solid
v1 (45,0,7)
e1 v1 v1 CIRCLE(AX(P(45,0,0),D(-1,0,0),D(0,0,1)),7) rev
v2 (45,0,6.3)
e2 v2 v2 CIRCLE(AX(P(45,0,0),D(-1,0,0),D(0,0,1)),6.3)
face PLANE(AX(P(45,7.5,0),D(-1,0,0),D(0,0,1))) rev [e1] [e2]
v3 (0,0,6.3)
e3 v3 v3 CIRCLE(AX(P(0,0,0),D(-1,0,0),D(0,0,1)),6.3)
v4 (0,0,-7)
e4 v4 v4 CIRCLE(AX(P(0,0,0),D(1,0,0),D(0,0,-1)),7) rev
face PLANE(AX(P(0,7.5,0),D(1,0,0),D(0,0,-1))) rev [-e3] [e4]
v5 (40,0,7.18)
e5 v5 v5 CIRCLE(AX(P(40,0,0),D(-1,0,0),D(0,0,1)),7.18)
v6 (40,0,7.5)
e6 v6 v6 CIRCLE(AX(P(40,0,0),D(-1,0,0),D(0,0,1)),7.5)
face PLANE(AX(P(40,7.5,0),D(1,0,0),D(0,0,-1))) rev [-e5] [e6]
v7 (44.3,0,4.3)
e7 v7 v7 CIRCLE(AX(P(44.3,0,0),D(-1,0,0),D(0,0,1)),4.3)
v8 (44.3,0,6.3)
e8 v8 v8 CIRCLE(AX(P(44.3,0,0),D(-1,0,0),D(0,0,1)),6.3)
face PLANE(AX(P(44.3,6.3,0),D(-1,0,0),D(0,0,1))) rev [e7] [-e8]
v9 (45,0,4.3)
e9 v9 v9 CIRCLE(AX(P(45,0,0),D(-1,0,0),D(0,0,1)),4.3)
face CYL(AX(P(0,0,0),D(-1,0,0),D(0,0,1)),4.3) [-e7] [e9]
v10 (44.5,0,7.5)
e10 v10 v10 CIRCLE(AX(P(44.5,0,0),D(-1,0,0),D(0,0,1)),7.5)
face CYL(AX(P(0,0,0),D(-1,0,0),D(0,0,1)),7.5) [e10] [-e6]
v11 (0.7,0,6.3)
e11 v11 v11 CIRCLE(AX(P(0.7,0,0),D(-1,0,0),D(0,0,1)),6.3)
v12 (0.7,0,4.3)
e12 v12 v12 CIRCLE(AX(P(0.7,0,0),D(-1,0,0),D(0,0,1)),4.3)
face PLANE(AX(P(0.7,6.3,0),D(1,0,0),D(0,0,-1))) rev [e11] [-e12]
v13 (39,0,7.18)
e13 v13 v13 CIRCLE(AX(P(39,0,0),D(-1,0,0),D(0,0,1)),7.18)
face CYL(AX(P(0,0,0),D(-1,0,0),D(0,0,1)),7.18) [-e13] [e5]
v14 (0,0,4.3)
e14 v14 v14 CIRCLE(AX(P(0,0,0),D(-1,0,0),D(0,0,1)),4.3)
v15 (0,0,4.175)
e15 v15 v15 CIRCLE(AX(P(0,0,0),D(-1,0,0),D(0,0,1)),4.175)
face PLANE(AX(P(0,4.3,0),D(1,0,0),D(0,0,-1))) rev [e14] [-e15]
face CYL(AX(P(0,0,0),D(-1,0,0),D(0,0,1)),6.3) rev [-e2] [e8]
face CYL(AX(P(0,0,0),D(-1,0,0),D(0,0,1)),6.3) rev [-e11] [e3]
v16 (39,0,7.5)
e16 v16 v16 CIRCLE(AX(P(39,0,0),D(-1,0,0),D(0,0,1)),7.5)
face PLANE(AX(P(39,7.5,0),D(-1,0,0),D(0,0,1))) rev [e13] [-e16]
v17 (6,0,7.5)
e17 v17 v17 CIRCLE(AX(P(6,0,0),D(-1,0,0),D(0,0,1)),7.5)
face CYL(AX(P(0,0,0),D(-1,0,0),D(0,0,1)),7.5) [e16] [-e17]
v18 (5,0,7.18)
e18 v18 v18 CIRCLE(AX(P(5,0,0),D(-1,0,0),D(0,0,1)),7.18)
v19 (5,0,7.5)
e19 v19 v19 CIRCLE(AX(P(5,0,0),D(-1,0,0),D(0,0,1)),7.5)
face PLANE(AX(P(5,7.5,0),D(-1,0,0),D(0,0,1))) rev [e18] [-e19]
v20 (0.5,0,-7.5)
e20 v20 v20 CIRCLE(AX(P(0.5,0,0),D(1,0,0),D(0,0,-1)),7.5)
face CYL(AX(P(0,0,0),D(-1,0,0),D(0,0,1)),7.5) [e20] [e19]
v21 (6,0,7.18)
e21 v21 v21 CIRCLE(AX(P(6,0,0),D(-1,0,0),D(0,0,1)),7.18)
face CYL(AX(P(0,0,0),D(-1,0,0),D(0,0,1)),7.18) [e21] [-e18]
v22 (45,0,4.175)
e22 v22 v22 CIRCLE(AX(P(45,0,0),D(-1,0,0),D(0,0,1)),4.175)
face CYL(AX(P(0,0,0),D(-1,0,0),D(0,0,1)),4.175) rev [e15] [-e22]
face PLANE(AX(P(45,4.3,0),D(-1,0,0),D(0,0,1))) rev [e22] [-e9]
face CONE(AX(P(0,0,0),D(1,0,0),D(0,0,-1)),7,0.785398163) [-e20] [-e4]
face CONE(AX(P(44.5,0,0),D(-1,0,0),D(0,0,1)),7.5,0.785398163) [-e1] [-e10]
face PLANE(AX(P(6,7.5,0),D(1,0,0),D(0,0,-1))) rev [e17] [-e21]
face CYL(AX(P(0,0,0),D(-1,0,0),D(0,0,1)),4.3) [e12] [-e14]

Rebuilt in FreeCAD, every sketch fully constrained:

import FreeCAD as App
import Part
import Sketcher

V = App.Vector
Q = App.Units.Quantity


def edges_at(feature, points):
    """Names of the edges that pass closest to the given points."""
    edges = feature.Shape.Edges
    near = lambda p: min(range(len(edges)), key=lambda i: edges[i].distToShape(Part.Vertex(*p))[0])
    return sorted({f"Edge{near(p) + 1}" for p in points})


def add_polygon(sketch, points):
    """Adds a closed chain of lines whose ends are joined by coincident constraints."""
    first, n = sketch.GeometryCount, len(points)
    for a, b in zip(points, points[1:] + points[:1]):
        sketch.addGeometry(Part.LineSegment(App.Vector(*a, 0), App.Vector(*b, 0)), False)
    for i in range(n):
        sketch.addConstraint(Sketcher.Constraint("Coincident", first + i, 2, first + (i + 1) % n, 1))

doc = App.newDocument("Part")
body = doc.addObject("PartDesign::Body", "Body")

# Sketch on XY plane
sketch1 = body.newObject("Sketcher::SketchObject", "Sketch")
sketch1.AttachmentSupport = (doc.getObject("XY_Plane"), [""])
sketch1.MapMode = "FlatFace"
add_polygon(sketch1, [(0, 4.3), (0, 4.17), (45, 4.17), (45, 4.3), (44.3, 4.3), (44.3, 6.3), (45, 6.3), (45, 7.5), (40, 7.5), (40, 7.18), (39, 7.18), (39, 7.5), (6, 7.5), (6, 7.18), (5, 7.18), (5, 7.5), (0, 7.5), (0, 6.3), (0.7, 6.3), (0.7, 4.3)])  # lines 0-19
sketch1.addConstraint(Sketcher.Constraint("Vertical", 0))
sketch1.addConstraint(Sketcher.Constraint("Horizontal", 1))
sketch1.addConstraint(Sketcher.Constraint("Vertical", 2))
sketch1.addConstraint(Sketcher.Constraint("Horizontal", 3))
sketch1.addConstraint(Sketcher.Constraint("Vertical", 4))
sketch1.addConstraint(Sketcher.Constraint("Horizontal", 5))
sketch1.addConstraint(Sketcher.Constraint("Vertical", 6))
sketch1.addConstraint(Sketcher.Constraint("Horizontal", 7))
sketch1.addConstraint(Sketcher.Constraint("Vertical", 8))
sketch1.addConstraint(Sketcher.Constraint("Horizontal", 9))
sketch1.addConstraint(Sketcher.Constraint("Vertical", 10))
sketch1.addConstraint(Sketcher.Constraint("Horizontal", 11))
sketch1.addConstraint(Sketcher.Constraint("Vertical", 12))
sketch1.addConstraint(Sketcher.Constraint("Horizontal", 13))
sketch1.addConstraint(Sketcher.Constraint("Vertical", 14))
sketch1.addConstraint(Sketcher.Constraint("Horizontal", 15))
sketch1.addConstraint(Sketcher.Constraint("Vertical", 16))
sketch1.addConstraint(Sketcher.Constraint("Horizontal", 17))
sketch1.addConstraint(Sketcher.Constraint("Vertical", 18))
sketch1.addConstraint(Sketcher.Constraint("Horizontal", 19))
sketch1.addConstraint(Sketcher.Constraint("PointOnObject", 0, 2, -2))
sketch1.addConstraint(Sketcher.Constraint("PointOnObject", 15, 2, -2))
sketch1.addConstraint(Sketcher.Constraint("Horizontal", 7, 2, 10, 2))
sketch1.addConstraint(Sketcher.Constraint("Horizontal", 9, 2, 12, 2))
sketch1.addConstraint(Sketcher.Constraint("Horizontal", 11, 2, 14, 2))
sketch1.addConstraint(Sketcher.Constraint("Horizontal", 5, 2, 16, 2))
sketch1.addConstraint(Sketcher.Constraint("Horizontal", 3, 2, 18, 2))
sketch1.addConstraint(Sketcher.Constraint("Vertical", 2, 2, 5, 2))
sketch1.addConstraint(Sketcher.Constraint("Equal", 9, 13))
sketch1.addConstraint(Sketcher.Constraint("Equal", 7, 15))
sketch1.addConstraint(Sketcher.Constraint("Equal", 5, 17))
sketch1.addConstraint(Sketcher.Constraint("DistanceX", 1, 1, 1, 2, Q("45 mm")))
sketch1.addConstraint(Sketcher.Constraint("DistanceX", 7, 2, 7, 1, Q("5 mm")))
sketch1.addConstraint(Sketcher.Constraint("DistanceX", 9, 2, 9, 1, Q("1 mm")))
sketch1.addConstraint(Sketcher.Constraint("DistanceY", 4, 1, 4, 2, Q("2 mm")))
sketch1.addConstraint(Sketcher.Constraint("DistanceX", 3, 2, 3, 1, Q("0.7 mm")))
sketch1.addConstraint(Sketcher.Constraint("DistanceY", 6, 1, 6, 2, Q("1.2 mm")))
sketch1.addConstraint(Sketcher.Constraint("DistanceY", 8, 2, 8, 1, Q("0.32 mm")))
sketch1.addConstraint(Sketcher.Constraint("DistanceY", -1, 1, 2, 2, Q("4.3 mm")))
sketch1.addConstraint(Sketcher.Constraint("DistanceY", 0, 2, 0, 1, Q("0.125 mm")))
revolution = body.newObject("PartDesign::Revolution", "Revolution")
revolution.Profile = sketch1
revolution.ReferenceAxis = (sketch1, ["H_Axis"])
revolution.Angle = 360
doc.recompute()

chamfer = body.newObject("PartDesign::Chamfer", "Chamfer")
chamfer.Base = (revolution, edges_at(revolution, [(0, -7.5, 0), (45, -7.5, 0)]))
chamfer.Size = 0.5

doc.recompute()
